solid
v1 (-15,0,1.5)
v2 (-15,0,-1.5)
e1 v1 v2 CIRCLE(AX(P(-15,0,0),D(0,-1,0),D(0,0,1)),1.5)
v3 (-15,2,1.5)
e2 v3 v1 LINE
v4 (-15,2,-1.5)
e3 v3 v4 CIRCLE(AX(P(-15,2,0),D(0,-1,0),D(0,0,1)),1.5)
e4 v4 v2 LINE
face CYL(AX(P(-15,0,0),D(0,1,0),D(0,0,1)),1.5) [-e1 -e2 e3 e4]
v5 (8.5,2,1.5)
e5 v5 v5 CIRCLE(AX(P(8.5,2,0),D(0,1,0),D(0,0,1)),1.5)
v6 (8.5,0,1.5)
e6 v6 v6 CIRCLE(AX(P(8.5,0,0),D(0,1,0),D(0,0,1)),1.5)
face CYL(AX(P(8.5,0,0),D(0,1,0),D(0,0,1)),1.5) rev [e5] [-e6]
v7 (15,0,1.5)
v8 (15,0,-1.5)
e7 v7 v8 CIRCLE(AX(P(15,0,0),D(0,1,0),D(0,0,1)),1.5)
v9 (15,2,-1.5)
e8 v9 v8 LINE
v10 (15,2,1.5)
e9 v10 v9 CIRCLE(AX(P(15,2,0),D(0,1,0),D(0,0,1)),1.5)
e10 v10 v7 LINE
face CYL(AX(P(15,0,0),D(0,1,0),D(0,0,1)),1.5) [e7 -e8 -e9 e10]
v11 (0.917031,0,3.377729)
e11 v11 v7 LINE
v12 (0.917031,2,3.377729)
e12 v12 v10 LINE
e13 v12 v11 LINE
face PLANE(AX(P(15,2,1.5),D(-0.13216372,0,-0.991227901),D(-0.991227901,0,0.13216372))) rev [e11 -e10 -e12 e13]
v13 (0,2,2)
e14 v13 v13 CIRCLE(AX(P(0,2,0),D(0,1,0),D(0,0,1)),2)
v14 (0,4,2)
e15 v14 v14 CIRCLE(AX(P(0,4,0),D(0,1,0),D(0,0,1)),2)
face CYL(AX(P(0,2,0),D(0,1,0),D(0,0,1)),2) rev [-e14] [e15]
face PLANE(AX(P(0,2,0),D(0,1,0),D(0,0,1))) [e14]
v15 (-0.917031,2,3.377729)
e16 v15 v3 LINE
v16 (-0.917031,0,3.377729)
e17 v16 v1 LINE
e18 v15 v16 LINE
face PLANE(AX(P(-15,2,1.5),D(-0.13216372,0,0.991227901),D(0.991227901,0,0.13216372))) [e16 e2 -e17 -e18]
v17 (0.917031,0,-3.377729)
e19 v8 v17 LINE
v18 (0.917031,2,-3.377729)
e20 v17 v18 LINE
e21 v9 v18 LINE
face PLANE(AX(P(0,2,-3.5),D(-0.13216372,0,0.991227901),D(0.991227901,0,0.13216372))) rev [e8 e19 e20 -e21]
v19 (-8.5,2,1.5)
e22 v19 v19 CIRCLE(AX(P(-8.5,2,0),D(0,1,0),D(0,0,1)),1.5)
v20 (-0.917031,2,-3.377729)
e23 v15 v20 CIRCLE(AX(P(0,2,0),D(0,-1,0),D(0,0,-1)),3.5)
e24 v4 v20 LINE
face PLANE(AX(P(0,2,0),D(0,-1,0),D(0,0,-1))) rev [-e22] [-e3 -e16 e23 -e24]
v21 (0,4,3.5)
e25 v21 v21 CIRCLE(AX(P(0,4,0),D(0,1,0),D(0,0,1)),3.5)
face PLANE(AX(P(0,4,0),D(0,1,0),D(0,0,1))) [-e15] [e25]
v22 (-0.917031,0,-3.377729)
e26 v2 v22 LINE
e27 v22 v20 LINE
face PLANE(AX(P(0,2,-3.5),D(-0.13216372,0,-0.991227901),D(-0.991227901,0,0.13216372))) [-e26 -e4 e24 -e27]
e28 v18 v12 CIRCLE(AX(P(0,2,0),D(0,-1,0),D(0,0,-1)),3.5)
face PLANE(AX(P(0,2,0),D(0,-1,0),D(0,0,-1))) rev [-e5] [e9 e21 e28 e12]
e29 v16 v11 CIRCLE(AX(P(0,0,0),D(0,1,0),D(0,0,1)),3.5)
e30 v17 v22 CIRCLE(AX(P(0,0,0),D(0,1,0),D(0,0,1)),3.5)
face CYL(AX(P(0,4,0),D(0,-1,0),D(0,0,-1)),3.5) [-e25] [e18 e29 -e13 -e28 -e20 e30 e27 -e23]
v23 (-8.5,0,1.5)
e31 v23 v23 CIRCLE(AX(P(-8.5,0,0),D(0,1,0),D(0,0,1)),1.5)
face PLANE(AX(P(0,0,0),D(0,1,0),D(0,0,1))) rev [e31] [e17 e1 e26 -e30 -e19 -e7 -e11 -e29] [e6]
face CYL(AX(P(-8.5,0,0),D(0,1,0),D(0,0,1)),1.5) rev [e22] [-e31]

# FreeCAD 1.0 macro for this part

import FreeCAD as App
import Part
import Sketcher

V = App.Vector

doc = App.newDocument("Part")
body = doc.addObject("PartDesign::Body", "Body")

# Sketch on XZ plane
sketch1 = body.newObject("Sketcher::SketchObject", "Sketch")
sketch1.AttachmentSupport = (doc.getObject("XZ_Plane"), [""])
sketch1.MapMode = "FlatFace"
sketch1.addGeometry(Part.Circle(V(0, 0, 0), V(0, 0, 1), 3.5), False)
sketch1.addConstraint([
    Sketcher.Constraint("Coincident", 0, 3, -1, 1),
    Sketcher.Constraint("Diameter", 0, 7.0),
])
pad1 = body.newObject("PartDesign::Pad", "Pad")
pad1.Profile = sketch1
pad1.Length = 4
pad1.Reversed = True

# Sketch on XZ plane
sketch2 = body.newObject("Sketcher::SketchObject", "Sketch001")
sketch2.AttachmentSupport = (doc.getObject("XZ_Plane"), [""])
sketch2.MapMode = "FlatFace"
sketch2.AttachmentOffset = App.Placement(V(0, 0, -4), App.Rotation())
sketch2.addGeometry(Part.Circle(V(0, 0, 0), V(0, 0, 1), 2), False)
sketch2.addConstraint([
    Sketcher.Constraint("Coincident", 0, 3, -1, 1),
    Sketcher.Constraint("Diameter", 0, 4.0),
])
pocket1 = body.newObject("PartDesign::Pocket", "Pocket")
pocket1.Profile = sketch2
pocket1.Length = 2
pocket1.Reversed = True

# Sketch on XZ plane
sketch3 = body.newObject("Sketcher::SketchObject", "Sketch002")
sketch3.AttachmentSupport = (doc.getObject("XZ_Plane"), [""])
sketch3.MapMode = "FlatFace"
sketch3.addGeometry([
    Part.LineSegment(V(15, -1.5, 0), V(0, -3.5, 0)),
    Part.LineSegment(V(0, -3.5, 0), V(0, 3.5, 0)),
    Part.LineSegment(V(0, 3.5, 0), V(15, 1.5, 0)),
    Part.LineSegment(V(15, 1.5, 0), V(15, -1.5, 0)),
], False)
sketch3.addConstraint([
    Sketcher.Constraint("Coincident", 0, 2, 1, 1),
    Sketcher.Constraint("Coincident", 1, 2, 2, 1),
    Sketcher.Constraint("Coincident", 2, 2, 3, 1),
    Sketcher.Constraint("Coincident", 3, 2, 0, 1),
    Sketcher.Constraint("Vertical", 1),
    Sketcher.Constraint("Vertical", 3),
    Sketcher.Constraint("Symmetric", 0, 2, 1, 2, -1, 1),
    Sketcher.Constraint("Equal", 0, 2),
    Sketcher.Constraint("DistanceY", 1, 1, 1, 2, 7.0),
    Sketcher.Constraint("DistanceY", 3, 2, 3, 1, 3.0),
    Sketcher.Constraint("DistanceX", -1, 1, 2, 2, 15.0),
])
pad2 = body.newObject("PartDesign::Pad", "Pad001")
pad2.Profile = sketch3
pad2.Length = 2
pad2.Reversed = True

# Sketch on XZ plane
sketch4 = body.newObject("Sketcher::SketchObject", "Sketch003")
sketch4.AttachmentSupport = (doc.getObject("XZ_Plane"), [""])
sketch4.MapMode = "FlatFace"
sketch4.AttachmentOffset = App.Placement(V(0, 0, -2), App.Rotation())
sketch4.addGeometry(Part.Circle(V(15, 0, 0), V(0, 0, 1), 1.5), False)
sketch4.addConstraint([
    Sketcher.Constraint("PointOnObject", 0, 3, -1),
    Sketcher.Constraint("Diameter", 0, 3.0),
    Sketcher.Constraint("DistanceX", -1, 1, 0, 3, 15.0),
])
pad3 = body.newObject("PartDesign::Pad", "Pad002")
pad3.Profile = sketch4
pad3.Length = 2
doc.recompute()

mirrored = body.newObject("PartDesign::Mirrored", "Mirrored")
mirrored.Originals = [pad2, pad3]
mirrored.MirrorPlane = (doc.getObject("YZ_Plane"), [""])
body.Tip = mirrored

# Sketch on XZ plane
sketch5 = body.newObject("Sketcher::SketchObject", "Sketch004")
sketch5.AttachmentSupport = (doc.getObject("XZ_Plane"), [""])
sketch5.MapMode = "FlatFace"
sketch5.AttachmentOffset = App.Placement(V(0, 0, -2), App.Rotation())
sketch5.addGeometry([
    Part.Circle(V(-8.5, 0, 0), V(0, 0, 1), 1.5),
    Part.Circle(V(8.5, 0, 0), V(0, 0, 1), 1.5),
], False)
sketch5.addConstraint([
    Sketcher.Constraint("Equal", 0, 1),
    Sketcher.Constraint("Symmetric", 0, 3, 1, 3, -1, 1),
    Sketcher.Constraint("PointOnObject", 0, 3, -1),
    Sketcher.Constraint("Diameter", 0, 3.0),
    Sketcher.Constraint("DistanceX", 0, 3, 1, 3, 17.0),
])
pocket2 = body.newObject("PartDesign::Pocket", "Pocket001")
pocket2.Profile = sketch5
pocket2.Length = 2
pocket2.Reversed = True

doc.recompute()
